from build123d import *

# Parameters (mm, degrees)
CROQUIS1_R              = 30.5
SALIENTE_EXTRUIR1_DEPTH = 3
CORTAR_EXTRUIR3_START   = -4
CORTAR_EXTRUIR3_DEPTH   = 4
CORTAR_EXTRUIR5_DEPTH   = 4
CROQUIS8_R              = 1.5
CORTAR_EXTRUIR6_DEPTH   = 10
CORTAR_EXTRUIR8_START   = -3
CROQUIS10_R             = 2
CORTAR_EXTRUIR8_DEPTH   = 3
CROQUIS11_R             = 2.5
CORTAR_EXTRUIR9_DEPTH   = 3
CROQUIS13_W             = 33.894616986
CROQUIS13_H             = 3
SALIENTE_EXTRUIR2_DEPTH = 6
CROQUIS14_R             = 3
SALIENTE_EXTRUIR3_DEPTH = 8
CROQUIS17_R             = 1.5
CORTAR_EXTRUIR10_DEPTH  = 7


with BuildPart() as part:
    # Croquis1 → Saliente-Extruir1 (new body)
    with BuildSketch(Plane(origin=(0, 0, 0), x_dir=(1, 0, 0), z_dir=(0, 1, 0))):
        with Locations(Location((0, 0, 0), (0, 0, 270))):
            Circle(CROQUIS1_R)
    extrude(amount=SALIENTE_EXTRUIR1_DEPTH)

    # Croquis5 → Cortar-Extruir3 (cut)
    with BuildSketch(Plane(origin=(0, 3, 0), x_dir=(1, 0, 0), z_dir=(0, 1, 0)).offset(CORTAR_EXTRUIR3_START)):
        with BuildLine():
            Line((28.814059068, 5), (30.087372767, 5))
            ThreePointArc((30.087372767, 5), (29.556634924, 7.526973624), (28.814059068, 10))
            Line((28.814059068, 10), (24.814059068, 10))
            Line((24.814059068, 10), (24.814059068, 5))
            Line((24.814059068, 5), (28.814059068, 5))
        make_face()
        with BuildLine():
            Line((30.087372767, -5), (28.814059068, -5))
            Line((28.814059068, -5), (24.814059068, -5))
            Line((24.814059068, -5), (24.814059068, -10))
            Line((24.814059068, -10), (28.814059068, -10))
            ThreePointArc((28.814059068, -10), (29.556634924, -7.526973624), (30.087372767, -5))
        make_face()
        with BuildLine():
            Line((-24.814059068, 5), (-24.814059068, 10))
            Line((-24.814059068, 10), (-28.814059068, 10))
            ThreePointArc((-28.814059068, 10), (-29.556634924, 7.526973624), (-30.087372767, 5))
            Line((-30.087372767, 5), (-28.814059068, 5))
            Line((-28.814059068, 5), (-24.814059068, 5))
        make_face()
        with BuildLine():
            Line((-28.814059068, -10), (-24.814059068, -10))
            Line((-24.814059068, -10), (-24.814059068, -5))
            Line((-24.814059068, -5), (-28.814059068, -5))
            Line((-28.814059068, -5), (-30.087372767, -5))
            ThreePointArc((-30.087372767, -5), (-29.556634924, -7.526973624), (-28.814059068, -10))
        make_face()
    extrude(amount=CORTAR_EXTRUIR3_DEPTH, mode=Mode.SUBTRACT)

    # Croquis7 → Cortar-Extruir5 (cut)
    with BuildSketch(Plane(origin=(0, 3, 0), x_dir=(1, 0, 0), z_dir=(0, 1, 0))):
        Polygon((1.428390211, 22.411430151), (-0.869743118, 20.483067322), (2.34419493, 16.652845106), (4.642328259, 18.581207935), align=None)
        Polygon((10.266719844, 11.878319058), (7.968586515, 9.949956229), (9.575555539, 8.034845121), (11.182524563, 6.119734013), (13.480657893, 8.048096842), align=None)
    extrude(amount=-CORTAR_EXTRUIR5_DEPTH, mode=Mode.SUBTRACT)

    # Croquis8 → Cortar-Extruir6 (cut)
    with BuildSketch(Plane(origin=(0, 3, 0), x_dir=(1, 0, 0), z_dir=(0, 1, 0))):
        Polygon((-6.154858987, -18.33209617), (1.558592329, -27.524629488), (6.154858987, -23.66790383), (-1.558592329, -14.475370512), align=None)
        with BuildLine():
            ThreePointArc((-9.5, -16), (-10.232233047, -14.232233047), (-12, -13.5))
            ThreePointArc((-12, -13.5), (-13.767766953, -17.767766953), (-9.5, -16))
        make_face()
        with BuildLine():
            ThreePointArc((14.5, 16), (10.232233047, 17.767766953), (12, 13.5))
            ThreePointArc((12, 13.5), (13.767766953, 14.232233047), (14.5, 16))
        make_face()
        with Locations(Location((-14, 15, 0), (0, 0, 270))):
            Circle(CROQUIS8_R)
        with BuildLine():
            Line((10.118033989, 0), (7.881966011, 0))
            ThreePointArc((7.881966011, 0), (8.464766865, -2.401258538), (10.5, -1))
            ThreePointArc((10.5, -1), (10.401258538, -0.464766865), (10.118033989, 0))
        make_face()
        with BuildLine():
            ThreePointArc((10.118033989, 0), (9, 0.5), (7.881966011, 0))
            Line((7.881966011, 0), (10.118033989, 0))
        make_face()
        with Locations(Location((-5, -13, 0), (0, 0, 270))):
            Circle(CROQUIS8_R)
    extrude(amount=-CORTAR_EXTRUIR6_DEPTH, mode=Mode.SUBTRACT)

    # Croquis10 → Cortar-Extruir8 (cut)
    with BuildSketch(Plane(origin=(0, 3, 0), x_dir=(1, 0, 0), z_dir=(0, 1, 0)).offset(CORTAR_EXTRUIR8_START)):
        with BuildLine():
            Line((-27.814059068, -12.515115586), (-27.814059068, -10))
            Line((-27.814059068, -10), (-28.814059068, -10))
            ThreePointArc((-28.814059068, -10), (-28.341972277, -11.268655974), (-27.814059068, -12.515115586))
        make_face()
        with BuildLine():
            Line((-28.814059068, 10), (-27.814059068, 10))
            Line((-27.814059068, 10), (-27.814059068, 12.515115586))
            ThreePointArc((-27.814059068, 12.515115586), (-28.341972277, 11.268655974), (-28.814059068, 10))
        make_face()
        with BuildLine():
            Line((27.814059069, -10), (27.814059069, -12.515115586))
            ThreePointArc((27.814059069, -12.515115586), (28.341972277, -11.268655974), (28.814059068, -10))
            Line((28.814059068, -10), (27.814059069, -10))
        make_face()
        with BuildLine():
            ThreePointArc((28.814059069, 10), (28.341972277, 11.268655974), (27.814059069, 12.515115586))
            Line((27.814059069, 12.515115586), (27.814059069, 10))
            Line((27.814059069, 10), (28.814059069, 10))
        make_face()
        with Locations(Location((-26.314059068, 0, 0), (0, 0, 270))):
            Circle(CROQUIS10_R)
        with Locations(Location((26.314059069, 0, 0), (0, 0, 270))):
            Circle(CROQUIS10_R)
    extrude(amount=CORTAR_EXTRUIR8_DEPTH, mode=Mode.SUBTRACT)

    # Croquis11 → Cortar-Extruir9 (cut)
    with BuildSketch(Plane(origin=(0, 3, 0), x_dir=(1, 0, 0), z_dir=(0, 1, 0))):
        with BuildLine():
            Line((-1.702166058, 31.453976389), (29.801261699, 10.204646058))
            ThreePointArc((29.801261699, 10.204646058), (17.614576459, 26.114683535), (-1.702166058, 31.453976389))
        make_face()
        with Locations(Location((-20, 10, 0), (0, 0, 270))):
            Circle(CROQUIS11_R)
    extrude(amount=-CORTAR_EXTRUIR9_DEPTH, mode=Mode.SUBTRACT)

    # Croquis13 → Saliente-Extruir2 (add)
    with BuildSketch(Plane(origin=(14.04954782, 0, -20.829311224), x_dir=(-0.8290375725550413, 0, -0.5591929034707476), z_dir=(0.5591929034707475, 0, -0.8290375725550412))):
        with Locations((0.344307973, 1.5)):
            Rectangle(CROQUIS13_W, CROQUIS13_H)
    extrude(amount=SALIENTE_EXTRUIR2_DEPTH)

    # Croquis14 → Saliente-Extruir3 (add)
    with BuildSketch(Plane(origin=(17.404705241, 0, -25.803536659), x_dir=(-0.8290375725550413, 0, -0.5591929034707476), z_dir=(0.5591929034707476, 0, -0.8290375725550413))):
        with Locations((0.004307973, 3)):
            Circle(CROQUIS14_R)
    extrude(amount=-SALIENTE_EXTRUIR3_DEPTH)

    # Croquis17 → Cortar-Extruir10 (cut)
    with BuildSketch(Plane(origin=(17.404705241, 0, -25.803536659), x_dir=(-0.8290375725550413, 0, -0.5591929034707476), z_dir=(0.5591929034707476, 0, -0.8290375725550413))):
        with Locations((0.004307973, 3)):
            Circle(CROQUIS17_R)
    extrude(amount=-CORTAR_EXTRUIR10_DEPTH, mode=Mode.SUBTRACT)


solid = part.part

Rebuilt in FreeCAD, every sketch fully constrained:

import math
import FreeCAD as App
import Part
import Sketcher
from FreeCAD import Vector
Q = App.Units.Quantity

doc = App.newDocument("Part")
body = doc.addObject("PartDesign::Body", "Body")

# Sketch on XZ plane
sketch1 = body.newObject("Sketcher::SketchObject", "Sketch")
sketch1.AttachmentSupport = (doc.getObject("XZ_Plane"), [""])
sketch1.MapMode = "FlatFace"
sketch1.addGeometry(Part.Circle(Vector(0, 0, 0), Vector(0, 0, 1), 30), False)
sketch1.addConstraint([
    Sketcher.Constraint("Coincident", 0, 3, -1, 1),
    Sketcher.Constraint("Diameter", 0, 61.0),
])
pad1 = body.newObject("PartDesign::Pad", "Pad")
pad1.Profile = sketch1
pad1.Length = 3
pad1.Reversed = True

# Sketch on XZ plane
sketch2 = body.newObject("Sketcher::SketchObject", "Sketch001")
sketch2.AttachmentSupport = (doc.getObject("XZ_Plane"), [""])
sketch2.MapMode = "FlatFace"
sketch2.AttachmentOffset = App.Placement(Vector(0, 0, 1), App.Rotation())
sketch2.addGeometry([
    Part.ArcOfCircle(Part.Circle(Vector(0, 0, 0), Vector(0, 0, 1), 30.5), math.radians(-19.14), math.radians(-9.44)),  # 0
    Part.LineSegment(Vector(28.8, -10, 0), Vector(24.8, -10, 0)),  # 1
    Part.LineSegment(Vector(24.8, -10, 0), Vector(24.8, -5, 0)),  # 2
    Part.LineSegment(Vector(24.8, -5, 0), Vector(30.1, -5, 0)),  # 3
    Part.LineSegment(Vector(30.1, 5, 0), Vector(24.8, 5, 0)),  # 4
    Part.LineSegment(Vector(24.8, 5, 0), Vector(24.8, 10, 0)),  # 5
    Part.LineSegment(Vector(24.8, 10, 0), Vector(28.8, 10, 0)),  # 6
    Part.ArcOfCircle(Part.Circle(Vector(0, 0, 0), Vector(0, 0, 1), 30.5), math.radians(9.44), math.radians(19.14)),  # 7
    Part.LineSegment(Vector(-24.8, -5, 0), Vector(-24.8, -10, 0)),  # 8
    Part.LineSegment(Vector(-24.8, -10, 0), Vector(-28.8, -10, 0)),  # 9
    Part.ArcOfCircle(Part.Circle(Vector(0, 0, 0), Vector(0, 0, 1), 30.5), math.radians(-170.56), math.radians(-160.86)),  # 10
    Part.LineSegment(Vector(-30.1, -5, 0), Vector(-24.8, -5, 0)),  # 11
    Part.LineSegment(Vector(-28.8, 10, 0), Vector(-24.8, 10, 0)),  # 12
    Part.LineSegment(Vector(-24.8, 10, 0), Vector(-24.8, 5, 0)),  # 13
    Part.LineSegment(Vector(-24.8, 5, 0), Vector(-30.1, 5, 0)),  # 14
    Part.ArcOfCircle(Part.Circle(Vector(0, 0, 0), Vector(0, 0, 1), 30.5), math.radians(160.86), math.radians(170.56)),  # 15
], False)
sketch2.addConstraint([
    Sketcher.Constraint("Coincident", 0, 1, 1, 1),
    Sketcher.Constraint("Coincident", 1, 2, 2, 1),
    Sketcher.Constraint("Coincident", 2, 2, 3, 1),
    Sketcher.Constraint("Coincident", 3, 2, 0, 2),
    Sketcher.Constraint("Coincident", 4, 2, 5, 1),
    Sketcher.Constraint("Coincident", 5, 2, 6, 1),
    Sketcher.Constraint("Coincident", 6, 2, 7, 2),
    Sketcher.Constraint("Coincident", 7, 1, 4, 1),
    Sketcher.Constraint("Coincident", 8, 2, 9, 1),
    Sketcher.Constraint("Coincident", 9, 2, 10, 2),
    Sketcher.Constraint("Coincident", 10, 1, 11, 1),
    Sketcher.Constraint("Coincident", 11, 2, 8, 1),
    Sketcher.Constraint("Coincident", 12, 2, 13, 1),
    Sketcher.Constraint("Coincident", 13, 2, 14, 1),
    Sketcher.Constraint("Coincident", 14, 2, 15, 2),
    Sketcher.Constraint("Coincident", 15, 1, 12, 1),
    Sketcher.Constraint("Horizontal", 1),
    Sketcher.Constraint("Vertical", 2),
    Sketcher.Constraint("Horizontal", 3),
    Sketcher.Constraint("Horizontal", 4),
    Sketcher.Constraint("Vertical", 5),
    Sketcher.Constraint("Horizontal", 6),
    Sketcher.Constraint("Vertical", 8),
    Sketcher.Constraint("Horizontal", 9),
    Sketcher.Constraint("Horizontal", 11),
    Sketcher.Constraint("Horizontal", 12),
    Sketcher.Constraint("Vertical", 13),
    Sketcher.Constraint("Horizontal", 14),
    Sketcher.Constraint("Coincident", 0, 3, -1, 1),
    Sketcher.Constraint("Coincident", 7, 3, -1, 1),
    Sketcher.Constraint("Coincident", 10, 3, -1, 1),
    Sketcher.Constraint("Coincident", 15, 3, -1, 1),
    Sketcher.Constraint("Equal", 0, 7),
    Sketcher.Constraint("Equal", 7, 10),
    Sketcher.Constraint("Equal", 10, 15),
    Sketcher.Constraint("Symmetric", 5, 2, 8, 2, -1, 1),
    Sketcher.Constraint("Symmetric", 1, 2, 12, 2, -1, 1),
    Sketcher.Constraint("Symmetric", 1, 2, 8, 2, -2),
    Sketcher.Constraint("Horizontal", 3, 2, 10, 1),
    Sketcher.Constraint("Horizontal", 7, 1, 13, 2),
    Sketcher.Constraint("Vertical", 3, 2, 7, 1),
    Sketcher.Constraint("Radius", 0, 30.5),
    Sketcher.Constraint("DistanceX", 1, 2, 1, 1, 4.0),
    Sketcher.Constraint("DistanceY", 2, 1, 2, 2, 5.0),
    Sketcher.Constraint("DistanceY", 0, 1, -1, 1, 10.0),
])
pocket1 = body.newObject("PartDesign::Pocket", "Pocket")
pocket1.Profile = sketch2
pocket1.Length = 4

# Sketch on XZ plane
sketch3 = body.newObject("Sketcher::SketchObject", "Sketch002")
sketch3.AttachmentSupport = (doc.getObject("XZ_Plane"), [""])
sketch3.MapMode = "FlatFace"
sketch3.AttachmentOffset = App.Placement(Vector(0, 0, -3), App.Rotation())
sketch3.addGeometry([
    Part.LineSegment(Vector(1.4, -22.4, 0), Vector(-0.9, -20.5, 0)),  # 0
    Part.LineSegment(Vector(-0.9, -20.5, 0), Vector(2.3, -16.7, 0)),  # 1
    Part.LineSegment(Vector(2.3, -16.7, 0), Vector(4.6, -18.6, 0)),  # 2
    Part.LineSegment(Vector(4.6, -18.6, 0), Vector(1.4, -22.4, 0)),  # 3
    Part.LineSegment(Vector(10.3, -11.9, 0), Vector(8, -9.9, 0)),  # 4
    Part.LineSegment(Vector(8, -9.9, 0), Vector(11.2, -6.1, 0)),  # 5
    Part.LineSegment(Vector(11.2, -6.1, 0), Vector(13.5, -8, 0)),  # 6
    Part.LineSegment(Vector(13.5, -8, 0), Vector(10.3, -11.9, 0)),  # 7
], False)
sketch3.addConstraint([
    Sketcher.Constraint("Coincident", 0, 2, 1, 1),
    Sketcher.Constraint("Coincident", 1, 2, 2, 1),
    Sketcher.Constraint("Coincident", 2, 2, 3, 1),
    Sketcher.Constraint("Coincident", 3, 2, 0, 1),
    Sketcher.Constraint("Coincident", 4, 2, 5, 1),
    Sketcher.Constraint("Coincident", 5, 2, 6, 1),
    Sketcher.Constraint("Coincident", 6, 2, 7, 1),
    Sketcher.Constraint("Coincident", 7, 2, 4, 1),
    Sketcher.Constraint("Perpendicular", 0, 1),
    Sketcher.Constraint("Perpendicular", 1, 2),
    Sketcher.Constraint("Perpendicular", 2, 3),
    Sketcher.Constraint("Perpendicular", 3, 4),
    Sketcher.Constraint("Perpendicular", 4, 5),
    Sketcher.Constraint("Perpendicular", 5, 6),
    Sketcher.Constraint("Perpendicular", 6, 7),
    Sketcher.Constraint("Equal", 2, 4),
    Sketcher.Constraint("Equal", 3, 5),
    Sketcher.Constraint("Angle", 0, Q("140 deg")),
    Sketcher.Constraint("Distance", 0, 3.0),
    Sketcher.Constraint("Distance", 1, 5.0),
    Sketcher.Constraint("DistanceX", -1, 1, 2, 2, 4.642328),
    Sketcher.Constraint("DistanceY", 3, 2, -1, 1, 22.41143),
    Sketcher.Constraint("DistanceX", -1, 1, 7, 2, 10.26672),
    Sketcher.Constraint("DistanceY", 7, 2, -1, 1, 11.878319),
])
pocket2 = body.newObject("PartDesign::Pocket", "Pocket001")
pocket2.Profile = sketch3
pocket2.Length = 4
pocket2.Reversed = True

# Sketch on XZ plane
sketch4 = body.newObject("Sketcher::SketchObject", "Sketch003")
sketch4.AttachmentSupport = (doc.getObject("XZ_Plane"), [""])
sketch4.MapMode = "FlatFace"
sketch4.AttachmentOffset = App.Placement(Vector(0, 0, -3), App.Rotation())
sketch4.addGeometry([
    Part.LineSegment(Vector(-6.2, 18.3, 0), Vector(1.6, 27.5, 0)),  # 0
    Part.LineSegment(Vector(1.6, 27.5, 0), Vector(6.2, 23.7, 0)),  # 1
    Part.LineSegment(Vector(6.2, 23.7, 0), Vector(-1.6, 14.5, 0)),  # 2
    Part.LineSegment(Vector(-1.6, 14.5, 0), Vector(-6.2, 18.3, 0)),  # 3
    Part.ArcOfCircle(Part.Circle(Vector(-12, 16, 0), Vector(0, 0, 1), 2.5), math.radians(-90), math.radians(0)),  # 4
    Part.ArcOfCircle(Part.Circle(Vector(-12, 16, 0), Vector(0, 0, 1), 2.5), math.radians(0), math.radians(270)),  # 5
    Part.ArcOfCircle(Part.Circle(Vector(12, -16, 0), Vector(0, 0, 1), 2.5), math.radians(90), math.radians(360)),  # 6
    Part.ArcOfCircle(Part.Circle(Vector(12, -16, 0), Vector(0, 0, 1), 2.5), math.radians(0), math.radians(90)),  # 7
    Part.Circle(Vector(-14, -15, 0), Vector(0, 0, 1), 1.5),  # 8
    Part.ArcOfCircle(Part.Circle(Vector(9, 1, 0), Vector(0, 0, 1), 1.5), math.radians(0), math.radians(222)),  # 9
    Part.ArcOfCircle(Part.Circle(Vector(9, 1, 0), Vector(0, 0, 1), 1.5), math.radians(-42), math.radians(0)),  # 10
    Part.ArcOfCircle(Part.Circle(Vector(9, 1, 0), Vector(0, 0, 1), 1.5), math.radians(-138), math.radians(-42)),  # 11
    Part.Circle(Vector(-5, 13, 0), Vector(0, 0, 1), 1.5),  # 12
], False)
sketch4.addConstraint([
    Sketcher.Constraint("Coincident", 0, 2, 1, 1),
    Sketcher.Constraint("Coincident", 1, 2, 2, 1),
    Sketcher.Constraint("Coincident", 2, 2, 3, 1),
    Sketcher.Constraint("Coincident", 3, 2, 0, 1),
    Sketcher.Constraint("Tangent", 4, 1, 5, 2),
    Sketcher.Constraint("Coincident", 5, 1, 4, 2),
    Sketcher.Constraint("Tangent", 6, 1, 7, 2),
    Sketcher.Constraint("Coincident", 7, 1, 6, 2),
    Sketcher.Constraint("Tangent", 9, 1, 10, 2),
    Sketcher.Constraint("Tangent", 10, 1, 11, 2),
    Sketcher.Constraint("Tangent", 11, 1, 9, 2),
    Sketcher.Constraint("Equal", 5, 6),
    Sketcher.Constraint("Equal", 8, 9),
    Sketcher.Constraint("Equal", 11, 12),
    Sketcher.Constraint("Symmetric", 4, 3, 6, 3, -1, 1),
    Sketcher.Constraint("PointOnObject", 10, 1, -1),
    Sketcher.Constraint("PointOnObject", 11, 1, -1),
    Sketcher.Constraint("Perpendicular", 0, 1),
    Sketcher.Constraint("Perpendicular", 1, 2),
    Sketcher.Constraint("Perpendicular", 2, 3),
    Sketcher.Constraint("Horizontal", 4, 3, 5, 1),
    Sketcher.Constraint("Horizontal", 6, 3, 7, 1),
    Sketcher.Constraint("Horizontal", 11, 3, 9, 1),
    Sketcher.Constraint("Vertical", 5, 3, 4, 1),
    Sketcher.Constraint("Vertical", 7, 3, 6, 1),
    Sketcher.Constraint("Diameter", 8, 3.0),
    Sketcher.Constraint("Radius", 4, 2.5),
    Sketcher.Constraint("Angle", 0, Q("50 deg")),
    Sketcher.Constraint("Distance", 0, 12.0),
    Sketcher.Constraint("Distance", 1, 6.0),
    Sketcher.Constraint("DistanceX", 4, 3, -1, 1, 12.0),
    Sketcher.Constraint("DistanceY", -1, 1, 4, 3, 16.0),
    Sketcher.Constraint("DistanceX", 8, 3, -1, 1, 14.0),
    Sketcher.Constraint("DistanceY", 8, 3, -1, 1, 15.0),
    Sketcher.Constraint("DistanceX", -1, 1, 9, 3, 9.0),
    Sketcher.Constraint("DistanceY", -1, 1, 9, 3, 1.0),
    Sketcher.Constraint("DistanceX", 12, 3, -1, 1, 5.0),
    Sketcher.Constraint("DistanceY", -1, 1, 12, 3, 13.0),
    Sketcher.Constraint("DistanceY", -1, 1, 0, 2, 27.524629),
    Sketcher.Constraint("DistanceX", -1, 1, 1, 2, 6.154859),
])
pocket3 = body.newObject("PartDesign::Pocket", "Pocket002")
pocket3.Profile = sketch4
pocket3.Length = 10
pocket3.Reversed = True

# Sketch on XZ plane
sketch5 = body.newObject("Sketcher::SketchObject", "Sketch004")
sketch5.AttachmentSupport = (doc.getObject("XZ_Plane"), [""])
sketch5.MapMode = "FlatFace"
sketch5.addGeometry([
    Part.LineSegment(Vector(-27.8, 12.5, 0), Vector(-27.8, 10, 0)),  # 0
    Part.LineSegment(Vector(-27.8, 10, 0), Vector(-28.8, 10, 0)),  # 1
    Part.ArcOfCircle(Part.Circle(Vector(0, 0, 0), Vector(0, 0, 1), 30.5), math.radians(155.77), math.radians(160.86)),  # 2
    Part.LineSegment(Vector(-28.8, -10, 0), Vector(-27.8, -10, 0)),  # 3
    Part.LineSegment(Vector(-27.8, -10, 0), Vector(-27.8, -12.5, 0)),  # 4
    Part.ArcOfCircle(Part.Circle(Vector(0, 0, 0), Vector(0, 0, 1), 30.5), math.radians(-160.86), math.radians(-155.77)),  # 5
    Part.LineSegment(Vector(27.8, 10, 0), Vector(27.8, 12.5, 0)),  # 6
    Part.ArcOfCircle(Part.Circle(Vector(0, 0, 0), Vector(0, 0, 1), 30.5), math.radians(19.14), math.radians(24.23)),  # 7
    Part.LineSegment(Vector(28.8, 10, 0), Vector(27.8, 10, 0)),  # 8
    Part.ArcOfCircle(Part.Circle(Vector(0, 0, 0), Vector(0, 0, 1), 30.5), math.radians(-24.23), math.radians(-19.14)),  # 9
    Part.LineSegment(Vector(27.8, -12.5, 0), Vector(27.8, -10, 0)),  # 10
    Part.LineSegment(Vector(27.8, -10, 0), Vector(28.8, -10, 0)),  # 11
    Part.Circle(Vector(-26.3, 0, 0), Vector(0, 0, 1), 2),  # 12
    Part.Circle(Vector(26.3, 0, 0), Vector(0, 0, 1), 2),  # 13
], False)
sketch5.addConstraint([
    Sketcher.Constraint("Coincident", 0, 2, 1, 1),
    Sketcher.Constraint("Coincident", 1, 2, 2, 2),
    Sketcher.Constraint("Coincident", 2, 1, 0, 1),
    Sketcher.Constraint("Coincident", 3, 2, 4, 1),
    Sketcher.Constraint("Coincident", 4, 2, 5, 2),
    Sketcher.Constraint("Coincident", 5, 1, 3, 1),
    Sketcher.Constraint("Coincident", 6, 2, 7, 2),
    Sketcher.Constraint("Coincident", 7, 1, 8, 1),
    Sketcher.Constraint("Coincident", 8, 2, 6, 1),
    Sketcher.Constraint("Coincident", 9, 1, 10, 1),
    Sketcher.Constraint("Coincident", 10, 2, 11, 1),
    Sketcher.Constraint("Coincident", 11, 2, 9, 2),
    Sketcher.Constraint("Vertical", 0),
    Sketcher.Constraint("Horizontal", 1),
    Sketcher.Constraint("Horizontal", 3),
    Sketcher.Constraint("Vertical", 4),
    Sketcher.Constraint("Vertical", 6),
    Sketcher.Constraint("Horizontal", 8),
    Sketcher.Constraint("Vertical", 10),
    Sketcher.Constraint("Horizontal", 11),
    Sketcher.Constraint("Coincident", 2, 3, -1, 1),
    Sketcher.Constraint("Coincident", 5, 3, -1, 1),
    Sketcher.Constraint("Coincident", 7, 3, -1, 1),
    Sketcher.Constraint("Coincident", 9, 3, -1, 1),
    Sketcher.Constraint("Equal", 2, 5),
    Sketcher.Constraint("Equal", 5, 7),
    Sketcher.Constraint("Equal", 7, 9),
    Sketcher.Constraint("Equal", 12, 13),
    Sketcher.Constraint("Symmetric", 12, 3, 13, 3, -1, 1),
    Sketcher.Constraint("Symmetric", 3, 2, 8, 2, -1, 1),
    Sketcher.Constraint("Symmetric", 0, 2, 10, 2, -1, 1),
    Sketcher.Constraint("Symmetric", 0, 2, 8, 2, -2),
    Sketcher.Constraint("PointOnObject", 12, 3, -1),
    Sketcher.Constraint("Diameter", 12, 4.0),
    Sketcher.Constraint("Radius", 2, 30.499999),
    Sketcher.Constraint("DistanceX", 1, 2, 1, 1, 1.0),
    Sketcher.Constraint("DistanceY", -1, 1, 0, 2, 10.0),
    Sketcher.Constraint("DistanceX", 0, 2, 12, 3, 1.5),
])
pocket4 = body.newObject("PartDesign::Pocket", "Pocket003")
pocket4.Profile = sketch5
pocket4.Length = 3

# Sketch on XZ plane
sketch6 = body.newObject("Sketcher::SketchObject", "Sketch005")
sketch6.AttachmentSupport = (doc.getObject("XZ_Plane"), [""])
sketch6.MapMode = "FlatFace"
sketch6.AttachmentOffset = App.Placement(Vector(0, 0, -3), App.Rotation())
sketch6.addGeometry([
    Part.LineSegment(Vector(-1.7, -31.5, 0), Vector(29.8, -10.2, 0)),
    Part.ArcOfCircle(Part.Circle(Vector(0, 0, 0), Vector(0, 0, 1), 31.5), math.radians(-93), math.radians(-19)),
    Part.Circle(Vector(-20, -10, 0), Vector(0, 0, 1), 2.5),
], False)
sketch6.addConstraint([
    Sketcher.Constraint("Coincident", 0, 1, 1, 1),
    Sketcher.Constraint("Coincident", 1, 2, 0, 2),
    Sketcher.Constraint("Coincident", 1, 3, -1, 1),
    Sketcher.Constraint("Diameter", 2, 5.0),
    Sketcher.Constraint("Radius", 1, 31.5),
    Sketcher.Constraint("Angle", 0, Q("34 deg")),
    Sketcher.Constraint("Distance", 0, 38.0),
    Sketcher.Constraint("DistanceX", 2, 3, -1, 1, 20.0),
    Sketcher.Constraint("DistanceY", 2, 3, -1, 1, 10.0),
])
pocket5 = body.newObject("PartDesign::Pocket", "Pocket004")
pocket5.Profile = sketch6
pocket5.Length = 3
pocket5.Reversed = True

# Sketch on an angled plane
sketch7 = body.newObject("Sketcher::SketchObject", "Sketch006")
sketch7.Placement = App.Placement(Vector(14.049548, 0, -20.829311), App.Rotation(Vector(-0.829037573, 0, -0.559192903), Vector(0, 1, 0), Vector(0.559192903, 0, -0.829037573), "ZXY"))
sketch7.addGeometry([
    Part.LineSegment(Vector(-16.6, 3, 0), Vector(-16.6, 0, 0)),
    Part.LineSegment(Vector(-16.6, 0, 0), Vector(17.3, 0, 0)),
    Part.LineSegment(Vector(17.3, 0, 0), Vector(17.3, 3, 0)),
    Part.LineSegment(Vector(17.3, 3, 0), Vector(-16.6, 3, 0)),
], False)
sketch7.addConstraint([
    Sketcher.Constraint("Coincident", 0, 2, 1, 1),
    Sketcher.Constraint("Coincident", 1, 2, 2, 1),
    Sketcher.Constraint("Coincident", 2, 2, 3, 1),
    Sketcher.Constraint("Coincident", 3, 2, 0, 1),
    Sketcher.Constraint("Vertical", 0),
    Sketcher.Constraint("Horizontal", 1),
    Sketcher.Constraint("Vertical", 2),
    Sketcher.Constraint("Horizontal", 3),
    Sketcher.Constraint("PointOnObject", 0, 2, -1),
    Sketcher.Constraint("DistanceY", 0, 2, 0, 1, 3.0),
    Sketcher.Constraint("DistanceX", 0, 2, -1, 1, 16.603001),
    Sketcher.Constraint("DistanceX", 1, 1, 1, 2, 33.894617),
])
pad2 = body.newObject("PartDesign::Pad", "Pad001")
pad2.Profile = sketch7
pad2.Length = 6

# Sketch on an angled plane
sketch8 = body.newObject("Sketcher::SketchObject", "Sketch007")
sketch8.Placement = App.Placement(Vector(17.404705, 0, -25.803537), App.Rotation(Vector(-0.829037573, 0, -0.559192903), Vector(0, 1, 0), Vector(0.559192903, 0, -0.829037573), "ZXY"))
sketch8.addGeometry(Part.Circle(Vector(0, 3, 0), Vector(0, 0, 1), 3), False)
sketch8.addConstraint([
    Sketcher.Constraint("Diameter", 0, 6.0),
    Sketcher.Constraint("DistanceY", -1, 1, 0, 3, 3.0),
    Sketcher.Constraint("DistanceX", -1, 1, 0, 3, 0.004308),
])
pad3 = body.newObject("PartDesign::Pad", "Pad002")
pad3.Profile = sketch8
pad3.Length = 8
pad3.Reversed = True

# Sketch on an angled plane
sketch9 = body.newObject("Sketcher::SketchObject", "Sketch008")
sketch9.Placement = App.Placement(Vector(17.404705, 0, -25.803537), App.Rotation(Vector(-0.829037573, 0, -0.559192903), Vector(0, 1, 0), Vector(0.559192903, 0, -0.829037573), "ZXY"))
sketch9.addGeometry(Part.Circle(Vector(0, 3, 0), Vector(0, 0, 1), 1.5), False)
sketch9.addConstraint([
    Sketcher.Constraint("Diameter", 0, 3.0),
    Sketcher.Constraint("DistanceY", -1, 1, 0, 3, 3.0),
    Sketcher.Constraint("DistanceX", -1, 1, 0, 3, 0.004308),
])
pocket6 = body.newObject("PartDesign::Pocket", "Pocket005")
pocket6.Profile = sketch9
pocket6.Length = 7

doc.recompute()
